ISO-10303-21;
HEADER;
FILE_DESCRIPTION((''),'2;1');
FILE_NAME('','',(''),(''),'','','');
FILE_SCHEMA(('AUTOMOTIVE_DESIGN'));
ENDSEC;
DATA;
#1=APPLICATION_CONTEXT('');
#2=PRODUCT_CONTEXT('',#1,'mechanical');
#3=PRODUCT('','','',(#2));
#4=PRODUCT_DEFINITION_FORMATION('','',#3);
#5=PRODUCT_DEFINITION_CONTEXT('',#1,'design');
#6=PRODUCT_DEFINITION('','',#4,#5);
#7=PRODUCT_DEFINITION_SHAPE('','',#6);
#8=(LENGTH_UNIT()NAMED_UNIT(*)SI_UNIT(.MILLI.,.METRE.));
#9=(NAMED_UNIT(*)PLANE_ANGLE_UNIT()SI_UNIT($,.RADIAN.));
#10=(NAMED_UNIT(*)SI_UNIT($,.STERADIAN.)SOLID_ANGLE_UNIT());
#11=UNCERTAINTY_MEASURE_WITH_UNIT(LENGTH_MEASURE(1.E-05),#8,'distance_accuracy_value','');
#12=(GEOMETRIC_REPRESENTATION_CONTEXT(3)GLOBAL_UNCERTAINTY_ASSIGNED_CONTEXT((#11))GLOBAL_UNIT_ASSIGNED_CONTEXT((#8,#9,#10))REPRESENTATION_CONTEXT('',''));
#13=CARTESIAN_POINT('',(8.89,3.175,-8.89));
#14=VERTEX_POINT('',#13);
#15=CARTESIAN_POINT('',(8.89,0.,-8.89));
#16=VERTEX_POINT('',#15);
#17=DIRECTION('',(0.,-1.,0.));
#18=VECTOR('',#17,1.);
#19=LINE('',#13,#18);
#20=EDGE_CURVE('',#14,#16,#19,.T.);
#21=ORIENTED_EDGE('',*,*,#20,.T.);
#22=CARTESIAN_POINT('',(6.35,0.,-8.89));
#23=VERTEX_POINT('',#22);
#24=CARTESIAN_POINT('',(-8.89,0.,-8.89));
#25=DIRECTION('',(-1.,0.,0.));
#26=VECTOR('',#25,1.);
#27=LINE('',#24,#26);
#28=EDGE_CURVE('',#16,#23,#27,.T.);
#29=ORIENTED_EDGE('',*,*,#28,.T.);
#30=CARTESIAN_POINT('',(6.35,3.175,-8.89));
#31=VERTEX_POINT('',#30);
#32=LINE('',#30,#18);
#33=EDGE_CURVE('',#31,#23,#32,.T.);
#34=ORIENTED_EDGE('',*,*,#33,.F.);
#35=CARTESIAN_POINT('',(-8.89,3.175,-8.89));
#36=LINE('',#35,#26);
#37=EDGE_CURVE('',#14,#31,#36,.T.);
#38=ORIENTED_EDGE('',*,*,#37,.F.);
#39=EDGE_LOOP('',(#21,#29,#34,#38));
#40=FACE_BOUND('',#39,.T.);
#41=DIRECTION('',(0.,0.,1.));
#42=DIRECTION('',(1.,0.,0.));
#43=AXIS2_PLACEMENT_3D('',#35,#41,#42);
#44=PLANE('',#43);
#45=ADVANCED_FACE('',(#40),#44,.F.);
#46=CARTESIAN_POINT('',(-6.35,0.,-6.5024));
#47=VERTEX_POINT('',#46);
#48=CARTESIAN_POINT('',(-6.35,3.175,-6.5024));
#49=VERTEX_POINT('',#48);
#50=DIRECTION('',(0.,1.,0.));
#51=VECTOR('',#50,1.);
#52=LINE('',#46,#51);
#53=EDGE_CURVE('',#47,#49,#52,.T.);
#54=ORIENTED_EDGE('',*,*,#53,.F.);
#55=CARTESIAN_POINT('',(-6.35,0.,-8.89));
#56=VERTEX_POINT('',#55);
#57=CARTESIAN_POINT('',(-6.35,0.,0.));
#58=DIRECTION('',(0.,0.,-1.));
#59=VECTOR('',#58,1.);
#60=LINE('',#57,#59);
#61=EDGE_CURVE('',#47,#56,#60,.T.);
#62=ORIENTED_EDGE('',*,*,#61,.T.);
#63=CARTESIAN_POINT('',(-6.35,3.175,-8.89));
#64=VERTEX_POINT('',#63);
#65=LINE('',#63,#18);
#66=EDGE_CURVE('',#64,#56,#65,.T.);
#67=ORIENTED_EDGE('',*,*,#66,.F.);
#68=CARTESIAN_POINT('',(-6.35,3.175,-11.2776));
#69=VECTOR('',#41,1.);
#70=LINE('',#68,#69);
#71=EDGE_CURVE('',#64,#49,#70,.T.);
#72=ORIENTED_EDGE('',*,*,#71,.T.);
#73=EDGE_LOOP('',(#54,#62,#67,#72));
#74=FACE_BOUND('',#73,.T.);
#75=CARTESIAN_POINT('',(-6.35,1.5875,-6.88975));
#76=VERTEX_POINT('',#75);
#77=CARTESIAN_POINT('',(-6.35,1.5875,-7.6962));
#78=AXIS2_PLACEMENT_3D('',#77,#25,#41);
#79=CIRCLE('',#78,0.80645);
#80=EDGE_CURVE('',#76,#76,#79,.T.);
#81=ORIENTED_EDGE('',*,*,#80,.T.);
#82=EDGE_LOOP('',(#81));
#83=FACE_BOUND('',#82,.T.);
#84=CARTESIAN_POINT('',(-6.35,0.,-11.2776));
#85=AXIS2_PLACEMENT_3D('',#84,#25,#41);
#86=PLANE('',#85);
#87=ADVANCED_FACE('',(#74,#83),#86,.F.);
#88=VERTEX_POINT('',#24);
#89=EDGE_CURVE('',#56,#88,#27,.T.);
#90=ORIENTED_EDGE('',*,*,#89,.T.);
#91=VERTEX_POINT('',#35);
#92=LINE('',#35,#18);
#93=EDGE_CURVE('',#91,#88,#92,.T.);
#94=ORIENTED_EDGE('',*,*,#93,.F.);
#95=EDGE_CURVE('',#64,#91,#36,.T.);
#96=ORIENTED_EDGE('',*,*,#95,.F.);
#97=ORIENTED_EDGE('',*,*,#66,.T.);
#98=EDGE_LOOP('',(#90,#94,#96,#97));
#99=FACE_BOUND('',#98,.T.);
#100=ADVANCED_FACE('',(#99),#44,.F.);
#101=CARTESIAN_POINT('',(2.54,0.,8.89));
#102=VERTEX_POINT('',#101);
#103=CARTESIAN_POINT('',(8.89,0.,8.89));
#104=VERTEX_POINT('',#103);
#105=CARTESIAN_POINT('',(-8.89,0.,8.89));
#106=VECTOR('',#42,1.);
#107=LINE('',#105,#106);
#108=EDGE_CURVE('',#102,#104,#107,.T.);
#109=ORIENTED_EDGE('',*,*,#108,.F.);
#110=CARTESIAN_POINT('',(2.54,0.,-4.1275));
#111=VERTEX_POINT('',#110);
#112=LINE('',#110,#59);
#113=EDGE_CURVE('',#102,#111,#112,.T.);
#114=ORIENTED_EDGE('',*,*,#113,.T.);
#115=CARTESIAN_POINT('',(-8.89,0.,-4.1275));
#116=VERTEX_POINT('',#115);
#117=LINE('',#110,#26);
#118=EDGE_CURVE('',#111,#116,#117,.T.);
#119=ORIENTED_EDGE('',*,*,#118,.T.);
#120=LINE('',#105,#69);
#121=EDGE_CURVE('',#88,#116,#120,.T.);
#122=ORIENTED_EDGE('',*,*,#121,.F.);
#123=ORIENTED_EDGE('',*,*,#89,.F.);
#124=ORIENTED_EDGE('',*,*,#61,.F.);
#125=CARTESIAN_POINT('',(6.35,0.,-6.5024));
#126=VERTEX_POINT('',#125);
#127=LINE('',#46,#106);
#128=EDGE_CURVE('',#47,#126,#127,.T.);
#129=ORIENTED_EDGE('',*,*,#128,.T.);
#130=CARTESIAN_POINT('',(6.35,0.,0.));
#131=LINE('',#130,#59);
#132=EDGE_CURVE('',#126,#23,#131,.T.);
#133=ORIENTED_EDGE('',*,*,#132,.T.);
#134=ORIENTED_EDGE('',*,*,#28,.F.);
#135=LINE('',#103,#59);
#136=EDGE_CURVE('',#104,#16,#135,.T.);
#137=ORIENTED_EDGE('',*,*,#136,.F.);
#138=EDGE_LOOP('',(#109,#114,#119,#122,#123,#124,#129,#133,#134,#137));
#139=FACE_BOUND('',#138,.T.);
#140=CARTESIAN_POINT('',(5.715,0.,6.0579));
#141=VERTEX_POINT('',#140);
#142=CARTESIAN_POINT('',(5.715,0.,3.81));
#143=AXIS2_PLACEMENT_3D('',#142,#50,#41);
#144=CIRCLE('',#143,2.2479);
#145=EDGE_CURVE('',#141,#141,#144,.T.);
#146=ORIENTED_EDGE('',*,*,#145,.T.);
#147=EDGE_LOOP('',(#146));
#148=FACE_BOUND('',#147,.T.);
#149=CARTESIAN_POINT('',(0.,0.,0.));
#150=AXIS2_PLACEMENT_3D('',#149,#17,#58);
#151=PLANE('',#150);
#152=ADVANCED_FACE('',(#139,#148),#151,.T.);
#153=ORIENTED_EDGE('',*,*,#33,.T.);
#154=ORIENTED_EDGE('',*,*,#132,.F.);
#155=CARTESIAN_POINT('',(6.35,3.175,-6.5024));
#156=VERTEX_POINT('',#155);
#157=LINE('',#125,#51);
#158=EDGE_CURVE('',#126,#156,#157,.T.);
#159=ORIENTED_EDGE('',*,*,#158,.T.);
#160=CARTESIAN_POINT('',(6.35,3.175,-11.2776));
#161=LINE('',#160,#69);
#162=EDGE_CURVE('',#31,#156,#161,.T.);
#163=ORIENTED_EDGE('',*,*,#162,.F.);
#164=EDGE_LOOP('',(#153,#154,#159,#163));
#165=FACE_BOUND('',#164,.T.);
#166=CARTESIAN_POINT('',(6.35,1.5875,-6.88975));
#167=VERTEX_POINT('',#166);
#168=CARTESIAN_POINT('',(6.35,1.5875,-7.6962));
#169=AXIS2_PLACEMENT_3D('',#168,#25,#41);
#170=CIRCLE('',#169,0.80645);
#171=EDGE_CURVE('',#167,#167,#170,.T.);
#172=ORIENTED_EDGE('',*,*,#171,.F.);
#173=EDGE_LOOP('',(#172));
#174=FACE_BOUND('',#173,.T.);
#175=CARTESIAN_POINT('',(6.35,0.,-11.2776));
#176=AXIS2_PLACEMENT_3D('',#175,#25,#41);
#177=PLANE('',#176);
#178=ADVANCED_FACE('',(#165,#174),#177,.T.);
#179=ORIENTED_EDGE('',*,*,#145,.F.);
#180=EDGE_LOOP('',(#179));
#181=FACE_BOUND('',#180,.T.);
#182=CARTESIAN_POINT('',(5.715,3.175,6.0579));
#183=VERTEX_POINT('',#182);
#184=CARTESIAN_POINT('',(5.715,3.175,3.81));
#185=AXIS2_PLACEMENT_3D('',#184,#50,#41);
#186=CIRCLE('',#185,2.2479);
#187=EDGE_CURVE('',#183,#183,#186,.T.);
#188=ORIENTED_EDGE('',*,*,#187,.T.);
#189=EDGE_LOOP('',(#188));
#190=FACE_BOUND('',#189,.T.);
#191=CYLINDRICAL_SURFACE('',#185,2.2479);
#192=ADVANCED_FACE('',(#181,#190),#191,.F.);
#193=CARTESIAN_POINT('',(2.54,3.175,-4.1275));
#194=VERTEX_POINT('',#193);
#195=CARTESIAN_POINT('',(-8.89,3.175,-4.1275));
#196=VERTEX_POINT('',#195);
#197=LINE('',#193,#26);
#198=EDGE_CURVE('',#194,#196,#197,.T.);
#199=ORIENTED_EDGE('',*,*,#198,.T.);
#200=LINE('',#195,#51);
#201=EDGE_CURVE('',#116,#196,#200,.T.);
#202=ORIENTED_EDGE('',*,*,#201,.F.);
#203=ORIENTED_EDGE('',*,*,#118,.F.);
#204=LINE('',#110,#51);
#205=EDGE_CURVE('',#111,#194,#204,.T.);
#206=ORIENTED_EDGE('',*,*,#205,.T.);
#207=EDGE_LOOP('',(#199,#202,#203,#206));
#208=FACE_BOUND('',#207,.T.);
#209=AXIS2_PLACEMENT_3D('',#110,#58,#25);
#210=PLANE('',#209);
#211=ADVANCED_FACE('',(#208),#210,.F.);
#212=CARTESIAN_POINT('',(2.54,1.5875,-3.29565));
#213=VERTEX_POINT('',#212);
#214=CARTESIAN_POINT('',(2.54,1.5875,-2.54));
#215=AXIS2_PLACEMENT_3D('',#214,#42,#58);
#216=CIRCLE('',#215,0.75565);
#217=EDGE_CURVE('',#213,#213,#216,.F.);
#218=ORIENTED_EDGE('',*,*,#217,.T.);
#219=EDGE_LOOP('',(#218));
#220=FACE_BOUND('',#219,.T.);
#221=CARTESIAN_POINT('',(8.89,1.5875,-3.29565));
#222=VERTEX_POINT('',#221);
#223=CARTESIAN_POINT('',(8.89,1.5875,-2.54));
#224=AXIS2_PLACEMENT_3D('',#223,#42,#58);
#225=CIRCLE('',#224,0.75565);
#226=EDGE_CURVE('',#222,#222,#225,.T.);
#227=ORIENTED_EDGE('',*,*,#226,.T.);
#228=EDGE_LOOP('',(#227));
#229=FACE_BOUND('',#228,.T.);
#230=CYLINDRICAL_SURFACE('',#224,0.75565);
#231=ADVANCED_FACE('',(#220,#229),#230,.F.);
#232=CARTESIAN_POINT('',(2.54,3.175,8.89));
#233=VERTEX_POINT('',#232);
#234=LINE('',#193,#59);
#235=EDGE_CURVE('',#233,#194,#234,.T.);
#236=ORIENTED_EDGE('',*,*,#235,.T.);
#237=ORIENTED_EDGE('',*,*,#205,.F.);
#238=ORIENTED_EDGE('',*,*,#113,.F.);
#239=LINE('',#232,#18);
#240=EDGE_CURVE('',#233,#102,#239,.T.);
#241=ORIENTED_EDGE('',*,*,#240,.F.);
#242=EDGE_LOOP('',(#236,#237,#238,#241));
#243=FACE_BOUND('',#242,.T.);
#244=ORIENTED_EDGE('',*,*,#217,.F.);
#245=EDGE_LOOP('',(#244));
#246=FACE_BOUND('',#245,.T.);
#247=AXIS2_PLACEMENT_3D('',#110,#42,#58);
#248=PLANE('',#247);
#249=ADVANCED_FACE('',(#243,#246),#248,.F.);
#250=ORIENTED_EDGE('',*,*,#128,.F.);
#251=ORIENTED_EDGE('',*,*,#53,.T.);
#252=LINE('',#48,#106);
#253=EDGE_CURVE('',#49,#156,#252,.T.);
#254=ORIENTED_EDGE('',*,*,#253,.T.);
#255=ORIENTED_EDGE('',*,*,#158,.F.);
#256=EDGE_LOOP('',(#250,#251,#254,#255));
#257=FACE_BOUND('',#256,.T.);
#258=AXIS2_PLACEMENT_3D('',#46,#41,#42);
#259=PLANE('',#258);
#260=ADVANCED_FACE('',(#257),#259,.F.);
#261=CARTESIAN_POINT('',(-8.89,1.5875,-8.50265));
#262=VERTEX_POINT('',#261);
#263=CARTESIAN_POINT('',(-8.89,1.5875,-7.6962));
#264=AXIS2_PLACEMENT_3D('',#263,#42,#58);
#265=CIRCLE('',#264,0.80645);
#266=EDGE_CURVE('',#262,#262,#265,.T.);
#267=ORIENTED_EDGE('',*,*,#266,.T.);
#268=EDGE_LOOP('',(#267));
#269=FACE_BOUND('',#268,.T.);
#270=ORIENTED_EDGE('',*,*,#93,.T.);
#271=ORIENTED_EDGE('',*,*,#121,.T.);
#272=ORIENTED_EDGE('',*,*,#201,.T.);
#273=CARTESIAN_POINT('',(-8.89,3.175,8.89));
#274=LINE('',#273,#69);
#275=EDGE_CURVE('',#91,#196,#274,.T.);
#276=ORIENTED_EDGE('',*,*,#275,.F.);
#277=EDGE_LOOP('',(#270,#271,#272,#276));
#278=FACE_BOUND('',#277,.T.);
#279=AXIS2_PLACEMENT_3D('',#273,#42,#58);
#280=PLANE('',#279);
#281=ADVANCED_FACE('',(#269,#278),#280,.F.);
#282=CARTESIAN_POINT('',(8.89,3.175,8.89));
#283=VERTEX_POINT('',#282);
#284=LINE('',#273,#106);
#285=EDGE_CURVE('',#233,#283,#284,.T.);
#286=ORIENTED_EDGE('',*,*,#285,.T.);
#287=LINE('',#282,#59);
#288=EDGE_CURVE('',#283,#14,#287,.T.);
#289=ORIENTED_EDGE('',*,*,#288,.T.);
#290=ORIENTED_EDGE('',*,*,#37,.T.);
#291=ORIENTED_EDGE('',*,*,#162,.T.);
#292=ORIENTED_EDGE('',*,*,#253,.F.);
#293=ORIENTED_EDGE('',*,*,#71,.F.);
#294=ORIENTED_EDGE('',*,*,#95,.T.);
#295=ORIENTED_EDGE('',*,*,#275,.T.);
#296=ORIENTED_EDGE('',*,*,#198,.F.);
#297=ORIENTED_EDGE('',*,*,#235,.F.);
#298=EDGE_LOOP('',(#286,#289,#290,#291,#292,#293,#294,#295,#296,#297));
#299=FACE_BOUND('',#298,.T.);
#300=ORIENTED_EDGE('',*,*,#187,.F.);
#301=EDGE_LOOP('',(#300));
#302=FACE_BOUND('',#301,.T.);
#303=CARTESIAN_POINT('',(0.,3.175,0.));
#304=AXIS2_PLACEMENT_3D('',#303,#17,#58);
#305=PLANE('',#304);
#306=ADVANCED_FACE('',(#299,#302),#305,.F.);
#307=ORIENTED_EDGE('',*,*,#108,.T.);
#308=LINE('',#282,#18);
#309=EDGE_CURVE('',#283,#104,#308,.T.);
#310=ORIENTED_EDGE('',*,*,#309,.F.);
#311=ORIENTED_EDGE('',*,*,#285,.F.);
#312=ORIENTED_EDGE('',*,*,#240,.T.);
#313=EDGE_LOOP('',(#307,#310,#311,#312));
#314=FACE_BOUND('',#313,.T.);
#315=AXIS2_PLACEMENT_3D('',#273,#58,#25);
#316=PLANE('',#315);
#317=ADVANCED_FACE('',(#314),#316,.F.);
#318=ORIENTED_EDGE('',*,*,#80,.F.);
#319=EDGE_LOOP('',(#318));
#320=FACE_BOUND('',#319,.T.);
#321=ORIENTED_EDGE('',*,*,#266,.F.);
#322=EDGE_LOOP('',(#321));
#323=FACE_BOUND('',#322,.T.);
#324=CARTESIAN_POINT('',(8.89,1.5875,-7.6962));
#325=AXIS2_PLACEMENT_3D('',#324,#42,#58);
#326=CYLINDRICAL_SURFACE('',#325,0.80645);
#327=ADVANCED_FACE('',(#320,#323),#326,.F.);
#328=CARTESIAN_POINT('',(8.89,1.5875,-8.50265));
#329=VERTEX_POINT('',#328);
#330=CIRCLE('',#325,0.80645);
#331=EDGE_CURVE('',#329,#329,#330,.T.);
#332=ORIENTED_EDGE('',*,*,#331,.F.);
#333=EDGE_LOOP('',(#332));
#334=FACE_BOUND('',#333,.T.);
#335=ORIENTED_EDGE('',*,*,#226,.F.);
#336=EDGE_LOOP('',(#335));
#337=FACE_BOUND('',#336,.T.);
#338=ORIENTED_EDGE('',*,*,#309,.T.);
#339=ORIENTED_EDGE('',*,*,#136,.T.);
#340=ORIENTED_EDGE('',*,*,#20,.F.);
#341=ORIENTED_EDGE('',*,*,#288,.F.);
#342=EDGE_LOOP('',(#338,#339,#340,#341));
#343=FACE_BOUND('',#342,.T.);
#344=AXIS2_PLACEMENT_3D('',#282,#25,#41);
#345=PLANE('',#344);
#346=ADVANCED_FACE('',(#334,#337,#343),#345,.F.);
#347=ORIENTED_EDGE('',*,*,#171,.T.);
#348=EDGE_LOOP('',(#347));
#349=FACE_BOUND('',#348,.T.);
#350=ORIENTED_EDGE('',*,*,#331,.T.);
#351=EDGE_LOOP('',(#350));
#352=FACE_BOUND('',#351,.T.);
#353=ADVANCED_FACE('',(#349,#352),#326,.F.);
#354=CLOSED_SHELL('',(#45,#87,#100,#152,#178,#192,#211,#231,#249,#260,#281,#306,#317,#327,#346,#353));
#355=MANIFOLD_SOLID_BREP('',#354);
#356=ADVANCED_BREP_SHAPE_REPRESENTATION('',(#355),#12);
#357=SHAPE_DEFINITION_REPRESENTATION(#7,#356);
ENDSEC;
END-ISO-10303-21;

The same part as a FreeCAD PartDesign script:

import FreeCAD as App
import Part
import Sketcher

V = App.Vector
Q = App.Units.Quantity

doc = App.newDocument("Part")
params = doc.addObject("Spreadsheet::Sheet", "Params")
for row, (alias, value) in enumerate([
    ("sketch1_width", "0.7 in"),
    ("pad1_length", "0.125 in"),
    ("sketch2_width", "0.5 in"),
    ("sketch2_height", "0.188 in"),
    ("sketch3_diameter", "0.177 in"),
    ("hole_diameter", "0.177 in"),
    ("hole2_diameter", "0.0635 in"),
    ("hole3_diameter", "0.0595 in"),
], start=1):
    params.set(f"A{row}", alias)
    params.set(f"B{row}", "=" + value)
    params.setAlias(f"B{row}", alias)

body = doc.addObject("PartDesign::Body", "Body")

sketch1 = doc.addObject("Sketcher::SketchObject", "Sketch")
body.addObject(sketch1)
sketch1.AttachmentSupport = (doc.XZ_Plane, [""])
sketch1.MapMode = "FlatFace"
sketch1.addGeometry([
    Part.LineSegment(V(-9, -9, 0), V(-9, 9, 0)),
    Part.LineSegment(V(-9, 9, 0), V(9, 9, 0)),
    Part.LineSegment(V(9, 9, 0), V(9, -9, 0)),
    Part.LineSegment(V(9, -9, 0), V(-9, -9, 0)),
], False)
sketch1.addConstraint([
    Sketcher.Constraint("Coincident", 0, 2, 1, 1),
    Sketcher.Constraint("Coincident", 1, 2, 2, 1),
    Sketcher.Constraint("Coincident", 2, 2, 3, 1),
    Sketcher.Constraint("Coincident", 3, 2, 0, 1),
    Sketcher.Constraint("Vertical", 0),
    Sketcher.Constraint("Horizontal", 1),
    Sketcher.Constraint("Vertical", 2),
    Sketcher.Constraint("Horizontal", 3),
    Sketcher.Constraint("Symmetric", 0, 2, 2, 2, -1, 1),
    Sketcher.Constraint("Equal", 3, 0),
    Sketcher.Constraint("DistanceX", 1, 1, 1, 2, Q("0.7 in")),
])
sketch1.setExpression("Constraints[10]", "Params.sketch1_width")
pad1 = doc.addObject("PartDesign::Pad", "Pad")
body.addObject(pad1)
pad1.Profile = sketch1
pad1.setExpression("Length", "Params.pad1_length")
pad1.Reversed = True

sketch2 = doc.addObject("Sketcher::SketchObject", "Sketch001")
body.addObject(sketch2)
sketch2.AttachmentSupport = (doc.XZ_Plane, [""])
sketch2.MapMode = "FlatFace"
sketch2.AttachmentOffset = App.Placement(V(0, 0, -0.125 * 25.4), App.Rotation())
sketch2.addGeometry([
    Part.LineSegment(V(-6.3, -11.3, 0), V(-6.3, -6.5, 0)),
    Part.LineSegment(V(-6.3, -6.5, 0), V(6.3, -6.5, 0)),
    Part.LineSegment(V(6.3, -6.5, 0), V(6.3, -11.3, 0)),
    Part.LineSegment(V(6.3, -11.3, 0), V(-6.3, -11.3, 0)),
], False)
sketch2.addConstraint([
    Sketcher.Constraint("Coincident", 0, 2, 1, 1),
    Sketcher.Constraint("Coincident", 1, 2, 2, 1),
    Sketcher.Constraint("Coincident", 2, 2, 3, 1),
    Sketcher.Constraint("Coincident", 3, 2, 0, 1),
    Sketcher.Constraint("Vertical", 0),
    Sketcher.Constraint("Horizontal", 1),
    Sketcher.Constraint("Vertical", 2),
    Sketcher.Constraint("Horizontal", 3),
    Sketcher.Constraint("DistanceX", 1, 1, 1, 2, Q("0.5 in")),
    Sketcher.Constraint("DistanceY", 0, 1, 0, 2, Q("0.188 in")),
    Sketcher.Constraint("DistanceX", 0, 2, -1, 1, Q("0.25 in")),
    Sketcher.Constraint("DistanceY", 0, 2, -1, 1, Q("0.256 in")),
])
sketch2.setExpression("Constraints[8]", "Params.sketch2_width")
sketch2.setExpression("Constraints[9]", "Params.sketch2_height")
pocket1 = doc.addObject("PartDesign::Pocket", "Pocket")
body.addObject(pocket1)
pocket1.Profile = sketch2
pocket1.Type = "ThroughAll"
pocket1.Reversed = True

sketch3 = doc.addObject("Sketcher::SketchObject", "Sketch002")
body.addObject(sketch3)
sketch3.AttachmentSupport = (doc.XZ_Plane, [""])
sketch3.MapMode = "FlatFace"
sketch3.AttachmentOffset = App.Placement(V(0, 0, -0.125 * 25.4), App.Rotation())
sketch3.addGeometry(Part.Circle(V(5.7, 3.8, 0), V(0, 0, 1), 2.2), False)
sketch3.addConstraint([
    Sketcher.Constraint("Diameter", 0, Q("0.177 in")),
    Sketcher.Constraint("DistanceY", -1, 1, 0, 3, Q("0.15 in")),
    Sketcher.Constraint("DistanceX", -1, 1, 0, 3, Q("0.225 in")),
])
sketch3.setExpression("Constraints[0]", "Params.sketch3_diameter")
doc.recompute()
hole = doc.addObject("PartDesign::Hole", "Hole")
body.addObject(hole)
hole.Profile = sketch3
hole.ThreadType = "None"
hole.setExpression("Diameter", "Params.hole_diameter")
hole.DepthType = "ThroughAll"
hole.Reversed = True

sketch4 = doc.addObject("Sketcher::SketchObject", "Sketch003")
body.addObject(sketch4)
sketch4.AttachmentSupport = (doc.YZ_Plane, [""])
sketch4.MapMode = "FlatFace"
sketch4.AttachmentOffset = App.Placement(V(0, 0, 0.35 * 25.4), App.Rotation())
sketch4.addGeometry(Part.Circle(V(1.6, -7.7, 0), V(0, 0, 1), 0.8), False)
sketch4.addConstraint([
    Sketcher.Constraint("Diameter", 0, Q("0.0635 in")),
    Sketcher.Constraint("DistanceX", -1, 1, 0, 3, Q("0.0625 in")),
    Sketcher.Constraint("DistanceY", 0, 3, -1, 1, Q("0.303 in")),
])
doc.recompute()
hole2 = doc.addObject("PartDesign::Hole", "Hole001")
body.addObject(hole2)
hole2.Profile = sketch4
hole2.ThreadType = "None"
hole2.setExpression("Diameter", "Params.hole2_diameter")
hole2.DepthType = "ThroughAll"

sketch5 = doc.addObject("Sketcher::SketchObject", "Sketch004")
body.addObject(sketch5)
sketch5.AttachmentSupport = (doc.YZ_Plane, [""])
sketch5.MapMode = "FlatFace"
sketch5.AttachmentOffset = App.Placement(V(0, 0, 0.35 * 25.4), App.Rotation())
sketch5.addGeometry(Part.Circle(V(1.6, -2.5, 0), V(0, 0, 1), 0.8), False)
sketch5.addConstraint([
    Sketcher.Constraint("Diameter", 0, Q("0.0595 in")),
    Sketcher.Constraint("DistanceY", 0, 3, -1, 1, Q("0.1 in")),
    Sketcher.Constraint("DistanceX", -1, 1, 0, 3, Q("0.0625 in")),
])
doc.recompute()
hole3 = doc.addObject("PartDesign::Hole", "Hole002")
body.addObject(hole3)
hole3.Profile = sketch5
hole3.ThreadType = "None"
hole3.setExpression("Diameter", "Params.hole3_diameter")
hole3.DepthType = "ThroughAll"

sketch6 = doc.addObject("Sketcher::SketchObject", "Sketch005")
body.addObject(sketch6)
sketch6.AttachmentSupport = (doc.XZ_Plane, [""])
sketch6.MapMode = "FlatFace"
sketch6.AttachmentOffset = App.Placement(V(0, 0, -0.125 * 25.4), App.Rotation())
sketch6.addGeometry([
    Part.LineSegment(V(-13, -4, 0), V(-13, 9, 0)),
    Part.LineSegment(V(-13, 9, 0), V(3, 9, 0)),
    Part.LineSegment(V(3, 9, 0), V(3, -4, 0)),
    Part.LineSegment(V(3, -4, 0), V(-13, -4, 0)),
], False)
sketch6.addConstraint([
    Sketcher.Constraint("Coincident", 0, 2, 1, 1),
    Sketcher.Constraint("Coincident", 1, 2, 2, 1),
    Sketcher.Constraint("Coincident", 2, 2, 3, 1),
    Sketcher.Constraint("Coincident", 3, 2, 0, 1),
    Sketcher.Constraint("Vertical", 0),
    Sketcher.Constraint("Horizontal", 1),
    Sketcher.Constraint("Vertical", 2),
    Sketcher.Constraint("Horizontal", 3),
    Sketcher.Constraint("DistanceX", -1, 1, 1, 2, Q("0.1 in")),
    Sketcher.Constraint("DistanceY", 2, 2, -1, 1, Q("0.1625 in")),
    Sketcher.Constraint("DistanceX", 1, 1, 1, 2, 15.753119),
    Sketcher.Constraint("DistanceY", 0, 1, 0, 2, 13.574134),
])
pocket2 = doc.addObject("PartDesign::Pocket", "Pocket001")
body.addObject(pocket2)
pocket2.Profile = sketch6
pocket2.Type = "ThroughAll"
pocket2.Reversed = True

doc.recompute()
